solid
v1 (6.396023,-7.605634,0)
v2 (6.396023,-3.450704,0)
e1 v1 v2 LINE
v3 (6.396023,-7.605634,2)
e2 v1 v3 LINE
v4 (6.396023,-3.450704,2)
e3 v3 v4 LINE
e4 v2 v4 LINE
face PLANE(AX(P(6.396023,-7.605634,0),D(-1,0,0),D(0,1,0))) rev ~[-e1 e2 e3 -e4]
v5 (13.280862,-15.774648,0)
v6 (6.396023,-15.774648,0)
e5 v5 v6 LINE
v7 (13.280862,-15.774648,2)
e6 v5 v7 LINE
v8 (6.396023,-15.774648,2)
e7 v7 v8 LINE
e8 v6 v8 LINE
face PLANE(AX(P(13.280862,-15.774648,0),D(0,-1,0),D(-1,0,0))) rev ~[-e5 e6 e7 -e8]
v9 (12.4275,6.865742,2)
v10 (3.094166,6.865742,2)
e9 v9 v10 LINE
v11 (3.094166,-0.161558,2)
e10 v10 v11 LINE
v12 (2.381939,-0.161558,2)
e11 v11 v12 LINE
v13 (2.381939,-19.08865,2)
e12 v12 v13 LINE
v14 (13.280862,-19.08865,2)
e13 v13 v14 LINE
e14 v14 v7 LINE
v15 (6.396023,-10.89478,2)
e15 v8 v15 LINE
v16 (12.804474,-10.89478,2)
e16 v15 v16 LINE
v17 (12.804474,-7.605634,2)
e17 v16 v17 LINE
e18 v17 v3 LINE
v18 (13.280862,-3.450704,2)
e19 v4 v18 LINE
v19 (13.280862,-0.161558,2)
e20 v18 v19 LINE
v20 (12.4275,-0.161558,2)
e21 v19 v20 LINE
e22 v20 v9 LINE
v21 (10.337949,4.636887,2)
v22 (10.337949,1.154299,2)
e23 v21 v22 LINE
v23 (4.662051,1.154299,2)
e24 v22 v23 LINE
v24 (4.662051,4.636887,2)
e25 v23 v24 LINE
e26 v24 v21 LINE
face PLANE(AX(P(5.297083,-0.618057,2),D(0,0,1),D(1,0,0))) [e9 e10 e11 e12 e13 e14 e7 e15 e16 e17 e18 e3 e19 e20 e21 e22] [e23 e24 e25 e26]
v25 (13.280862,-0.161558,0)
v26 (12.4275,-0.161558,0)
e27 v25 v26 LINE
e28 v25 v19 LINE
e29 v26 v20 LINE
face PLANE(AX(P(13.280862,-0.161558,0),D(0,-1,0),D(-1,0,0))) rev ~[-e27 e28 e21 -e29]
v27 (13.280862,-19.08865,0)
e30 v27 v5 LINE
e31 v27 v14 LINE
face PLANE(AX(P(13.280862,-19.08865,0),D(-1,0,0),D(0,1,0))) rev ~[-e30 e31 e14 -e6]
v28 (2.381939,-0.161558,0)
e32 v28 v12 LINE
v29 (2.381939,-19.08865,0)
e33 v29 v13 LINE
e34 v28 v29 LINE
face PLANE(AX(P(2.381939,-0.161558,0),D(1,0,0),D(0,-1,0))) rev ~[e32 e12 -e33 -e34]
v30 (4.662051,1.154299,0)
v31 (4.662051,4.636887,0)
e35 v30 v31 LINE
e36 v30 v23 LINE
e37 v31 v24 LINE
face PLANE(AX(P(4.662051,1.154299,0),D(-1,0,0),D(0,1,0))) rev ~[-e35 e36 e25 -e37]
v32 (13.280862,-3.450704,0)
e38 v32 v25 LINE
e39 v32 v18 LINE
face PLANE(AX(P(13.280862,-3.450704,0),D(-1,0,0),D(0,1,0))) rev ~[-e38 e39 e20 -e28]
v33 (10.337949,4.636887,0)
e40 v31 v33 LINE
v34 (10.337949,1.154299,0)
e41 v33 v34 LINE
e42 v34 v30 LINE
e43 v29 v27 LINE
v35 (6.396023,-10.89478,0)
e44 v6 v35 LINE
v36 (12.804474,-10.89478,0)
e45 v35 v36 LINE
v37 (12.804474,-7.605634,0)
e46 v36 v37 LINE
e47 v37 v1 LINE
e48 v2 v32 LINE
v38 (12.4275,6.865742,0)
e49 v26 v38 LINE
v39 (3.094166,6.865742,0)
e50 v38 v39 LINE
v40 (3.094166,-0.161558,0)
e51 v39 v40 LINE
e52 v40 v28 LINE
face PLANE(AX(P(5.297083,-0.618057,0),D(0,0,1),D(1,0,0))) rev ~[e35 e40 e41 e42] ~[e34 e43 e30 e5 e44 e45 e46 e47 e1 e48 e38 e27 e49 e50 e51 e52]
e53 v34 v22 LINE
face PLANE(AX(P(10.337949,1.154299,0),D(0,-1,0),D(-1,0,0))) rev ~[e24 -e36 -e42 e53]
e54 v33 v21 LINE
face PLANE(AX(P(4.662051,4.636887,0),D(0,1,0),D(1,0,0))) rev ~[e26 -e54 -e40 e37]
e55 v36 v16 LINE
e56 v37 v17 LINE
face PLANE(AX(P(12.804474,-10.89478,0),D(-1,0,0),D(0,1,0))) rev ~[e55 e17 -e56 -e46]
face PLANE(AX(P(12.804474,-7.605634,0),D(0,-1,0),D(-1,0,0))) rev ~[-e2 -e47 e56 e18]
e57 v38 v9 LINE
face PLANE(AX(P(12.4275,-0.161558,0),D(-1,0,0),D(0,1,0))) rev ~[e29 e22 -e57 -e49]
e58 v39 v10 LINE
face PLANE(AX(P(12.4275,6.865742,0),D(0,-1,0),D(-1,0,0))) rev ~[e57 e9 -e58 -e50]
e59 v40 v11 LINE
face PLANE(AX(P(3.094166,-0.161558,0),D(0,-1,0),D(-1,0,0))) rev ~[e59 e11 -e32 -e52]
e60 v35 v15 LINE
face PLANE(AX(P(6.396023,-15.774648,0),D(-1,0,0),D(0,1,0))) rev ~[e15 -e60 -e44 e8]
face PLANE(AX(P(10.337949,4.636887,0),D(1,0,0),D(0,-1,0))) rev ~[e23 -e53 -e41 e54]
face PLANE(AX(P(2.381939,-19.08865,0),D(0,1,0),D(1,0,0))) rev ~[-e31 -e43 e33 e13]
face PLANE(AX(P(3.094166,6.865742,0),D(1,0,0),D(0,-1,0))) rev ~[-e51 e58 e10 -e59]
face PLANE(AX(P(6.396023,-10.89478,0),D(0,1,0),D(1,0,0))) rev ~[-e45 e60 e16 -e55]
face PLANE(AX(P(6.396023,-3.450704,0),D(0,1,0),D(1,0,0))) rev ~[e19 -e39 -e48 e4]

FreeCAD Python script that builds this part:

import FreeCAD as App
import Part
import Sketcher

V = App.Vector

doc = App.newDocument("Part")
body = doc.addObject("PartDesign::Body", "Body")

# Sketch on XY plane
sketch1 = body.newObject("Sketcher::SketchObject", "Sketch")
sketch1.AttachmentSupport = (doc.getObject("XY_Plane"), [""])
sketch1.MapMode = "FlatFace"
sketch1.addGeometry(Part.LineSegment(V(2.4, -0.2, 0), V(2.4, -19.1, 0)), False)
sketch1.addGeometry(Part.LineSegment(V(2.4, -19.1, 0), V(13.3, -19.1, 0)), False)
sketch1.addGeometry(Part.LineSegment(V(13.3, -19.1, 0), V(13.3, -15.8, 0)), False)
sketch1.addGeometry(Part.LineSegment(V(13.3, -15.8, 0), V(6.4, -15.8, 0)), False)
sketch1.addGeometry(Part.LineSegment(V(6.4, -15.8, 0), V(6.4, -10.9, 0)), False)
sketch1.addGeometry(Part.LineSegment(V(6.4, -10.9, 0), V(12.8, -10.9, 0)), False)
sketch1.addGeometry(Part.LineSegment(V(12.8, -10.9, 0), V(12.8, -7.6, 0)), False)
sketch1.addGeometry(Part.LineSegment(V(12.8, -7.6, 0), V(6.4, -7.6, 0)), False)
sketch1.addGeometry(Part.LineSegment(V(6.4, -7.6, 0), V(6.4, -3.5, 0)), False)
sketch1.addGeometry(Part.LineSegment(V(6.4, -3.5, 0), V(13.3, -3.5, 0)), False)
sketch1.addGeometry(Part.LineSegment(V(13.3, -3.5, 0), V(13.3, -0.2, 0)), False)
sketch1.addGeometry(Part.LineSegment(V(13.3, -0.2, 0), V(12.4, -0.2, 0)), False)
sketch1.addGeometry(Part.LineSegment(V(12.4, -0.2, 0), V(12.4, 6.9, 0)), False)
sketch1.addGeometry(Part.LineSegment(V(12.4, 6.9, 0), V(3.1, 6.9, 0)), False)
sketch1.addGeometry(Part.LineSegment(V(3.1, 6.9, 0), V(3.1, -0.2, 0)), False)
sketch1.addGeometry(Part.LineSegment(V(3.1, -0.2, 0), V(2.4, -0.2, 0)), False)
sketch1.addGeometry(Part.LineSegment(V(4.7, 1.2, 0), V(4.7, 4.6, 0)), False)
sketch1.addGeometry(Part.LineSegment(V(4.7, 4.6, 0), V(10.3, 4.6, 0)), False)
sketch1.addGeometry(Part.LineSegment(V(10.3, 4.6, 0), V(10.3, 1.2, 0)), False)
sketch1.addGeometry(Part.LineSegment(V(10.3, 1.2, 0), V(4.7, 1.2, 0)), False)
sketch1.addConstraint(Sketcher.Constraint("Coincident", 0, 2, 1, 1))
sketch1.addConstraint(Sketcher.Constraint("Coincident", 1, 2, 2, 1))
sketch1.addConstraint(Sketcher.Constraint("Coincident", 2, 2, 3, 1))
sketch1.addConstraint(Sketcher.Constraint("Coincident", 3, 2, 4, 1))
sketch1.addConstraint(Sketcher.Constraint("Coincident", 4, 2, 5, 1))
sketch1.addConstraint(Sketcher.Constraint("Coincident", 5, 2, 6, 1))
sketch1.addConstraint(Sketcher.Constraint("Coincident", 6, 2, 7, 1))
sketch1.addConstraint(Sketcher.Constraint("Coincident", 7, 2, 8, 1))
sketch1.addConstraint(Sketcher.Constraint("Coincident", 8, 2, 9, 1))
sketch1.addConstraint(Sketcher.Constraint("Coincident", 9, 2, 10, 1))
sketch1.addConstraint(Sketcher.Constraint("Coincident", 10, 2, 11, 1))
sketch1.addConstraint(Sketcher.Constraint("Coincident", 11, 2, 12, 1))
sketch1.addConstraint(Sketcher.Constraint("Coincident", 12, 2, 13, 1))
sketch1.addConstraint(Sketcher.Constraint("Coincident", 13, 2, 14, 1))
sketch1.addConstraint(Sketcher.Constraint("Coincident", 14, 2, 15, 1))
sketch1.addConstraint(Sketcher.Constraint("Coincident", 15, 2, 0, 1))
sketch1.addConstraint(Sketcher.Constraint("Coincident", 16, 2, 17, 1))
sketch1.addConstraint(Sketcher.Constraint("Coincident", 17, 2, 18, 1))
sketch1.addConstraint(Sketcher.Constraint("Coincident", 18, 2, 19, 1))
sketch1.addConstraint(Sketcher.Constraint("Coincident", 19, 2, 16, 1))
sketch1.addConstraint(Sketcher.Constraint("Vertical", 0))
sketch1.addConstraint(Sketcher.Constraint("Horizontal", 1))
sketch1.addConstraint(Sketcher.Constraint("Vertical", 2))
sketch1.addConstraint(Sketcher.Constraint("Horizontal", 3))
sketch1.addConstraint(Sketcher.Constraint("Vertical", 4))
sketch1.addConstraint(Sketcher.Constraint("Horizontal", 5))
sketch1.addConstraint(Sketcher.Constraint("Vertical", 6))
sketch1.addConstraint(Sketcher.Constraint("Horizontal", 7))
sketch1.addConstraint(Sketcher.Constraint("Vertical", 8))
sketch1.addConstraint(Sketcher.Constraint("Horizontal", 9))
sketch1.addConstraint(Sketcher.Constraint("Vertical", 10))
sketch1.addConstraint(Sketcher.Constraint("Horizontal", 11))
sketch1.addConstraint(Sketcher.Constraint("Vertical", 12))
sketch1.addConstraint(Sketcher.Constraint("Horizontal", 13))
sketch1.addConstraint(Sketcher.Constraint("Vertical", 14))
sketch1.addConstraint(Sketcher.Constraint("Horizontal", 15))
sketch1.addConstraint(Sketcher.Constraint("Vertical", 16))
sketch1.addConstraint(Sketcher.Constraint("Horizontal", 17))
sketch1.addConstraint(Sketcher.Constraint("Vertical", 18))
sketch1.addConstraint(Sketcher.Constraint("Horizontal", 19))
sketch1.addConstraint(Sketcher.Constraint("Horizontal", 11, 2, 14, 2))
sketch1.addConstraint(Sketcher.Constraint("Vertical", 4, 2, 7, 2))
sketch1.addConstraint(Sketcher.Constraint("Vertical", 2, 2, 9, 2))
sketch1.addConstraint(Sketcher.Constraint("Equal", 6, 10))
sketch1.addConstraint(Sketcher.Constraint("DistanceY", 2, 1, 2, 2, 3.314002))
sketch1.addConstraint(Sketcher.Constraint("DistanceY", 12, 1, 12, 2, 7.0273))
sketch1.addConstraint(Sketcher.Constraint("DistanceX", 3, 2, 3, 1, 6.884838))
sketch1.addConstraint(Sketcher.Constraint("DistanceX", 5, 1, 5, 2, 6.408451))
sketch1.addConstraint(Sketcher.Constraint("DistanceX", 11, 2, 11, 1, 0.853361))
sketch1.addConstraint(Sketcher.Constraint("DistanceY", 0, 2, 0, 1, 18.927092))
sketch1.addConstraint(Sketcher.Constraint("DistanceY", 8, 1, 8, 2, 4.15493))
sketch1.addConstraint(Sketcher.Constraint("DistanceX", -1, 1, 11, 2, 12.4275))
sketch1.addConstraint(Sketcher.Constraint("DistanceY", -1, 1, 18, 2, 1.154299))
sketch1.addConstraint(Sketcher.Constraint("DistanceX", 1, 1, 1, 2, 10.898923))
sketch1.addConstraint(Sketcher.Constraint("DistanceX", 13, 2, 13, 1, 9.333334))
sketch1.addConstraint(Sketcher.Constraint("DistanceX", 17, 1, 17, 2, 5.675898))
sketch1.addConstraint(Sketcher.Constraint("DistanceY", 4, 1, 4, 2, 4.879867))
sketch1.addConstraint(Sketcher.Constraint("DistanceY", 16, 1, 16, 2, 3.482587))
sketch1.addConstraint(Sketcher.Constraint("DistanceY", 0, 2, -1, 1, 19.08865))
sketch1.addConstraint(Sketcher.Constraint("DistanceX", -1, 1, 16, 2, 4.662051))
pad1 = body.newObject("PartDesign::Pad", "Pad")
pad1.Profile = sketch1
pad1.Length = 2

doc.recompute()
